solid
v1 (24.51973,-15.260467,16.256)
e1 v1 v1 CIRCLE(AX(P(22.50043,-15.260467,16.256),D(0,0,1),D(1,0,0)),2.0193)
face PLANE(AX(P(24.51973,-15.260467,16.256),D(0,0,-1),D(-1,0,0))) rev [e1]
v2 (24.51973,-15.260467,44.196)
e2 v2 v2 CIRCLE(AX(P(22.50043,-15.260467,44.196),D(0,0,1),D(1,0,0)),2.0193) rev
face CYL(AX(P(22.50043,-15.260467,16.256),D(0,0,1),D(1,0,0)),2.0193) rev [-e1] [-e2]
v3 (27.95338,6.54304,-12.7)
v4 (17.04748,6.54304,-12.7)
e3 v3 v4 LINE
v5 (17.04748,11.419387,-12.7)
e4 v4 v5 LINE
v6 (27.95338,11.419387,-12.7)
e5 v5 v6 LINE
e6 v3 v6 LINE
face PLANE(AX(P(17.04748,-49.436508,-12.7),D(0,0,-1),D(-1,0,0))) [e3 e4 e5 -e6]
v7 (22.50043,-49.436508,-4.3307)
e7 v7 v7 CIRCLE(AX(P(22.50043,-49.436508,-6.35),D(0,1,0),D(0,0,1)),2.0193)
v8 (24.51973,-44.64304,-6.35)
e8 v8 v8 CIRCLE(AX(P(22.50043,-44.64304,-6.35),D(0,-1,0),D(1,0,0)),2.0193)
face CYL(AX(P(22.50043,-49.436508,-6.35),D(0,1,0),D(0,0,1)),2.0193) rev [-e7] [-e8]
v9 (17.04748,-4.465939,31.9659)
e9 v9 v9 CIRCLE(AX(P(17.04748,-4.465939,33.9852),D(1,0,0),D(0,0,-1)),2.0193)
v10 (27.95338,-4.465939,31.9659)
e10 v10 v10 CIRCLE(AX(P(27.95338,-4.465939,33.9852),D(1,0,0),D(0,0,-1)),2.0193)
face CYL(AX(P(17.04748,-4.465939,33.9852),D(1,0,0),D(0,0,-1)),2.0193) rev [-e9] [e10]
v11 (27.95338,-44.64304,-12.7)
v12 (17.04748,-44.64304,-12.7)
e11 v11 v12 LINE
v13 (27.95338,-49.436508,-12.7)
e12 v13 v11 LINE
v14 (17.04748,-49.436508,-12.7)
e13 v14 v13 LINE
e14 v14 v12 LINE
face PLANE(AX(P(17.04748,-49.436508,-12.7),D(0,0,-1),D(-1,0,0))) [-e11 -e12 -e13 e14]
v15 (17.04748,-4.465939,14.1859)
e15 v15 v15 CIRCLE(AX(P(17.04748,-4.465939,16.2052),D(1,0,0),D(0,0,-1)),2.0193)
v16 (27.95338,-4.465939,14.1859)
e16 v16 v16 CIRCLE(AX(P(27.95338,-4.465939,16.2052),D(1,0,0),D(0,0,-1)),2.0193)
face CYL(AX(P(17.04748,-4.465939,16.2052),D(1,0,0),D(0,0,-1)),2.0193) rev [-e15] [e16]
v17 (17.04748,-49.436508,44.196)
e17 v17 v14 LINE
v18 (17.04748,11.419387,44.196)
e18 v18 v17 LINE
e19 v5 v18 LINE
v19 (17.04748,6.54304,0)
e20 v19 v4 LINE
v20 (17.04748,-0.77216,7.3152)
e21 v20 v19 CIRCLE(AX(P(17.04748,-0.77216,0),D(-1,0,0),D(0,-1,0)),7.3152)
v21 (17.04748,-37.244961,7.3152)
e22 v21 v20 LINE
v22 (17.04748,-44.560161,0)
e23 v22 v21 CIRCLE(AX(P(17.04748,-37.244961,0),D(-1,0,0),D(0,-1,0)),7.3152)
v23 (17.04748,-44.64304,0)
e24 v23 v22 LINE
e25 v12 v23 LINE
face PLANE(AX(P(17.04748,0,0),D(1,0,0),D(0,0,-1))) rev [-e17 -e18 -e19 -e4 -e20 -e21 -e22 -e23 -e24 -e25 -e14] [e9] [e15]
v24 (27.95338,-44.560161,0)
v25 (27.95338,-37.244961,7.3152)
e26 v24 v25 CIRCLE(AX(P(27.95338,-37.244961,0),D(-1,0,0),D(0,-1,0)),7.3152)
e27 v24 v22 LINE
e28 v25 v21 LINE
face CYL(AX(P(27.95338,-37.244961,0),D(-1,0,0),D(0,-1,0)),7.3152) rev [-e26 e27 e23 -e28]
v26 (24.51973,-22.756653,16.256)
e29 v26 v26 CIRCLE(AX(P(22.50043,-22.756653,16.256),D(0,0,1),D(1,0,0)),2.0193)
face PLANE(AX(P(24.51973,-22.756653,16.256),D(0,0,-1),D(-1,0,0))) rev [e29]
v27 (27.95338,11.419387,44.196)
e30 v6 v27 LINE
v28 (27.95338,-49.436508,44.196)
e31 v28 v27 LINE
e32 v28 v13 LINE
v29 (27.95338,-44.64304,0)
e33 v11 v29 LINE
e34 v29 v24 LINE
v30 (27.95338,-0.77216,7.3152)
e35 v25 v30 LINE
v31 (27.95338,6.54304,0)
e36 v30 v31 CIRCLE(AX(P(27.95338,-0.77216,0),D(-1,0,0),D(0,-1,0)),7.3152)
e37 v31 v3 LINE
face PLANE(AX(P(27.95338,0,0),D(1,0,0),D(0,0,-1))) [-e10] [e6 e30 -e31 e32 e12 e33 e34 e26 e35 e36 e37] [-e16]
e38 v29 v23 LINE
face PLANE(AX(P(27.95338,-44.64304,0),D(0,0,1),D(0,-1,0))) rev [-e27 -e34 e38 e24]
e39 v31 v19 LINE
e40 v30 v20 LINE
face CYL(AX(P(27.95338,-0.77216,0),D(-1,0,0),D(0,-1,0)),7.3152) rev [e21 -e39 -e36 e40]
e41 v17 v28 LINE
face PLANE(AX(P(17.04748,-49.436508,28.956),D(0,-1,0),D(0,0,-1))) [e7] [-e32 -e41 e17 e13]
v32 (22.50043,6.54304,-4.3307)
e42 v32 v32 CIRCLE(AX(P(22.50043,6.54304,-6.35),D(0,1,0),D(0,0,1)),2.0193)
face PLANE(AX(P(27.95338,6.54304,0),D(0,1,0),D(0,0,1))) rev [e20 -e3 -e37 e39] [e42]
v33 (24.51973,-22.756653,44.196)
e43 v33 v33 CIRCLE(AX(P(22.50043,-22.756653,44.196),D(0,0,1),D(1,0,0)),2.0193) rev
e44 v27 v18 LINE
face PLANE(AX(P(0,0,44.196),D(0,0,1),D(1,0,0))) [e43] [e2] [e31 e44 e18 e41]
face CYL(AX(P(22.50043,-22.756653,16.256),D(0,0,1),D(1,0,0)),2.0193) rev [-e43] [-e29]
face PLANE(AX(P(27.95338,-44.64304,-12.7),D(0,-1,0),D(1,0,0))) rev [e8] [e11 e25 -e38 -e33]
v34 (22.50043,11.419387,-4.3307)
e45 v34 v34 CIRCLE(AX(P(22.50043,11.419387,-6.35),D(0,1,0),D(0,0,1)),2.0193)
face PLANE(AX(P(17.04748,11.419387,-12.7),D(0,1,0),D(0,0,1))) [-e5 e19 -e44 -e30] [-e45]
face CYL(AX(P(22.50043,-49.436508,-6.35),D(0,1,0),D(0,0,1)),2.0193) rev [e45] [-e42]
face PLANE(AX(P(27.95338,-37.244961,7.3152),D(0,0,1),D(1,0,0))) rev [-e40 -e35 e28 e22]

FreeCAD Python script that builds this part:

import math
import FreeCAD as App
import Part
import Sketcher
from FreeCAD import Vector
Q = App.Units.Quantity

doc = App.newDocument("Part")
body = doc.addObject("PartDesign::Body", "Body")

# Sketch on YZ plane
sketch1 = doc.addObject("Sketcher::SketchObject", "Sketch")
body.addObject(sketch1)
sketch1.AttachmentSupport = (doc.YZ_Plane, [""])
sketch1.MapMode = "FlatFace"
sketch1.AttachmentOffset = App.Placement(Vector(0, 0, 27.95338), App.Rotation())
sketch1.addGeometry(Part.LineSegment(Vector(11, 29, 0), Vector(-49, 29, 0)), False)
sketch1.addGeometry(Part.LineSegment(Vector(-49, 29, 0), Vector(-49, -13, 0)), False)
sketch1.addGeometry(Part.LineSegment(Vector(-49, -13, 0), Vector(11, -13, 0)), False)
sketch1.addGeometry(Part.LineSegment(Vector(11, -13, 0), Vector(11, 29, 0)), False)
sketch1.addConstraint(Sketcher.Constraint("Coincident", 0, 2, 1, 1))
sketch1.addConstraint(Sketcher.Constraint("Coincident", 1, 2, 2, 1))
sketch1.addConstraint(Sketcher.Constraint("Coincident", 2, 2, 3, 1))
sketch1.addConstraint(Sketcher.Constraint("Coincident", 3, 2, 0, 1))
sketch1.addConstraint(Sketcher.Constraint("Horizontal", 0))
sketch1.addConstraint(Sketcher.Constraint("Vertical", 1))
sketch1.addConstraint(Sketcher.Constraint("Horizontal", 2))
sketch1.addConstraint(Sketcher.Constraint("Vertical", 3))
sketch1.addConstraint(Sketcher.Constraint("DistanceY", 1, 2, 1, 1, Q("1.64 in")))
sketch1.addConstraint(Sketcher.Constraint("DistanceY", 1, 2, -1, 1, Q("0.5 in")))
sketch1.addConstraint(Sketcher.Constraint("DistanceX", 0, 2, 0, 1, Q("60.855895 mm")))
sketch1.addConstraint(Sketcher.Constraint("DistanceX", 0, 2, -1, 1, Q("49.436508 mm")))
pad1 = doc.addObject("PartDesign::Pad", "Pad")
body.addObject(pad1)
pad1.Profile = sketch1
pad1.Length = 10.9059
pad1.Reversed = True

# Sketch on YZ plane
sketch2 = doc.addObject("Sketcher::SketchObject", "Sketch001")
body.addObject(sketch2)
sketch2.AttachmentSupport = (doc.YZ_Plane, [""])
sketch2.MapMode = "FlatFace"
sketch2.AttachmentOffset = App.Placement(Vector(0, 0, 17.04748), App.Rotation())
sketch2.addGeometry(Part.LineSegment(Vector(6.54, -12.7, 0), Vector(-44.64, -12.7, 0)), False)
sketch2.addGeometry(Part.LineSegment(Vector(-44.64, -12.7, 0), Vector(-44.64, 0, 0)), False)
sketch2.addGeometry(Part.LineSegment(Vector(-44.64, 0, 0), Vector(-44.56, 0, 0)), False)
sketch2.addGeometry(Part.ArcOfCircle(Part.Circle(Vector(-37.24, 0, 0), Vector(0, 0, 1), 7.32), math.radians(90), math.radians(180)), False)
sketch2.addGeometry(Part.LineSegment(Vector(-37.24, 7.32, 0), Vector(-0.77, 7.32, 0)), False)
sketch2.addGeometry(Part.ArcOfCircle(Part.Circle(Vector(-0.77, 0, 0), Vector(0, 0, 1), 7.32), math.radians(0), math.radians(90)), False)
sketch2.addGeometry(Part.LineSegment(Vector(6.54, 0, 0), Vector(6.54, -12.7, 0)), False)
sketch2.addConstraint(Sketcher.Constraint("Coincident", 0, 2, 1, 1))
sketch2.addConstraint(Sketcher.Constraint("Coincident", 1, 2, 2, 1))
sketch2.addConstraint(Sketcher.Constraint("Coincident", 2, 2, 3, 2))
sketch2.addConstraint(Sketcher.Constraint("Tangent", 3, 1, 4, 1))
sketch2.addConstraint(Sketcher.Constraint("Tangent", 4, 2, 5, 2))
sketch2.addConstraint(Sketcher.Constraint("Tangent", 5, 1, 6, 1))
sketch2.addConstraint(Sketcher.Constraint("Coincident", 6, 2, 0, 1))
sketch2.addConstraint(Sketcher.Constraint("Horizontal", 0))
sketch2.addConstraint(Sketcher.Constraint("Vertical", 1))
sketch2.addConstraint(Sketcher.Constraint("Horizontal", 2))
sketch2.addConstraint(Sketcher.Constraint("Horizontal", 4))
sketch2.addConstraint(Sketcher.Constraint("Vertical", 6))
sketch2.addConstraint(Sketcher.Constraint("Equal", 3, 5))
sketch2.addConstraint(Sketcher.Constraint("PointOnObject", 3, 3, -1))
sketch2.addConstraint(Sketcher.Constraint("PointOnObject", 1, 2, -1))
sketch2.addConstraint(Sketcher.Constraint("DistanceY", 1, 1, 1, 2, Q("0.5 in")))
sketch2.addConstraint(Sketcher.Constraint("Radius", 3, Q("0.288 in")))
sketch2.addConstraint(Sketcher.Constraint("DistanceX", 0, 2, 0, 1, Q("2.0152 in")))
sketch2.addConstraint(Sketcher.Constraint("DistanceX", 4, 1, 4, 2, Q("36.472801 mm")))
sketch2.addConstraint(Sketcher.Constraint("DistanceX", 5, 3, -1, 1, Q("0.0304 in")))
pocket1 = doc.addObject("PartDesign::Pocket", "Pocket")
body.addObject(pocket1)
pocket1.Profile = sketch2
pocket1.Type = "ThroughAll"
pocket1.Reversed = True

# Sketch on XY plane
sketch3 = doc.addObject("Sketcher::SketchObject", "Sketch002")
body.addObject(sketch3)
sketch3.AttachmentSupport = (doc.XY_Plane, [""])
sketch3.MapMode = "FlatFace"
sketch3.AttachmentOffset = App.Placement(Vector(0, 0, -0.25 * 25.4), App.Rotation())
sketch3.addGeometry(Part.LineSegment(Vector(24.5, 11.4, 0), Vector(24.5, -49.4, 0)), False)
sketch3.addGeometry(Part.LineSegment(Vector(24.5, -49.4, 0), Vector(22.5, -49.4, 0)), False)
sketch3.addGeometry(Part.LineSegment(Vector(22.5, -49.4, 0), Vector(22.5, 11.4, 0)), False)
sketch3.addGeometry(Part.LineSegment(Vector(22.5, 11.4, 0), Vector(24.5, 11.4, 0)), False)
sketch3.addGeometry(Part.LineSegment(Vector(22.5, -49.4, 0), Vector(22.5, 11.4, 0)), True)  # axis
sketch3.addConstraint(Sketcher.Constraint("Coincident", 0, 2, 1, 1))
sketch3.addConstraint(Sketcher.Constraint("Coincident", 1, 2, 2, 1))
sketch3.addConstraint(Sketcher.Constraint("Coincident", 2, 2, 3, 1))
sketch3.addConstraint(Sketcher.Constraint("Coincident", 3, 2, 0, 1))
sketch3.addConstraint(Sketcher.Constraint("Vertical", 0))
sketch3.addConstraint(Sketcher.Constraint("Horizontal", 1))
sketch3.addConstraint(Sketcher.Constraint("Vertical", 2))
sketch3.addConstraint(Sketcher.Constraint("Horizontal", 3))
sketch3.addConstraint(Sketcher.Constraint("Vertical", 4))
sketch3.addConstraint(Sketcher.Constraint("Coincident", 4, 1, 1, 2))
sketch3.addConstraint(Sketcher.Constraint("Horizontal", 3, 2, 4, 2))
sketch3.addConstraint(Sketcher.Constraint("DistanceX", 1, 2, 1, 1, Q("0.0795 in")))
sketch3.addConstraint(Sketcher.Constraint("DistanceY", 0, 2, 0, 1, Q("60.855895 mm")))
sketch3.addConstraint(Sketcher.Constraint("DistanceX", -1, 1, 0, 2, Q("24.51973 mm")))
sketch3.addConstraint(Sketcher.Constraint("DistanceY", 0, 2, -1, 1, Q("49.436508 mm")))
groove = doc.addObject("PartDesign::Groove", "Groove")
body.addObject(groove)
groove.Profile = sketch3
groove.ReferenceAxis = (sketch3, ["Axis0"])
groove.Angle = 360

# Sketch on XZ plane
sketch4 = doc.addObject("Sketcher::SketchObject", "Sketch003")
body.addObject(sketch4)
sketch4.AttachmentSupport = (doc.XZ_Plane, [""])
sketch4.MapMode = "FlatFace"
sketch4.AttachmentOffset = App.Placement(Vector(0, 0, 22.756653), App.Rotation())
sketch4.addGeometry(Part.LineSegment(Vector(22.5, 16.3, 0), Vector(22.5, 29, 0)), False)
sketch4.addGeometry(Part.LineSegment(Vector(22.5, 29, 0), Vector(24.5, 29, 0)), False)
sketch4.addGeometry(Part.LineSegment(Vector(24.5, 29, 0), Vector(24.5, 16.3, 0)), False)
sketch4.addGeometry(Part.LineSegment(Vector(24.5, 16.3, 0), Vector(22.5, 16.3, 0)), False)
sketch4.addGeometry(Part.LineSegment(Vector(22.5, 16.3, 0), Vector(22.5, 29, 0)), True)  # axis
sketch4.addConstraint(Sketcher.Constraint("Coincident", 0, 2, 1, 1))
sketch4.addConstraint(Sketcher.Constraint("Coincident", 1, 2, 2, 1))
sketch4.addConstraint(Sketcher.Constraint("Coincident", 2, 2, 3, 1))
sketch4.addConstraint(Sketcher.Constraint("Coincident", 3, 2, 0, 1))
sketch4.addConstraint(Sketcher.Constraint("Vertical", 0))
sketch4.addConstraint(Sketcher.Constraint("Horizontal", 1))
sketch4.addConstraint(Sketcher.Constraint("Vertical", 2))
sketch4.addConstraint(Sketcher.Constraint("Horizontal", 3))
sketch4.addConstraint(Sketcher.Constraint("Vertical", 4))
sketch4.addConstraint(Sketcher.Constraint("Coincident", 4, 1, 3, 2))
sketch4.addConstraint(Sketcher.Constraint("Horizontal", 1, 2, 4, 2))
sketch4.addConstraint(Sketcher.Constraint("DistanceY", 0, 1, 0, 2, Q("0.5 in")))
sketch4.addConstraint(Sketcher.Constraint("DistanceY", -1, 1, 0, 2, Q("1.14 in")))
sketch4.addConstraint(Sketcher.Constraint("DistanceX", 1, 1, 1, 2, Q("0.0795 in")))
sketch4.addConstraint(Sketcher.Constraint("DistanceX", -1, 1, 0, 2, Q("22.50043 mm")))
groove2 = doc.addObject("PartDesign::Groove", "Groove001")
body.addObject(groove2)
groove2.Profile = sketch4
groove2.ReferenceAxis = (sketch4, ["Axis0"])
groove2.Angle = 360

# Sketch on XZ plane
sketch5 = doc.addObject("Sketcher::SketchObject", "Sketch004")
body.addObject(sketch5)
sketch5.AttachmentSupport = (doc.XZ_Plane, [""])
sketch5.MapMode = "FlatFace"
sketch5.AttachmentOffset = App.Placement(Vector(0, 0, 15.260467), App.Rotation())
sketch5.addGeometry(Part.LineSegment(Vector(22.5, 16.3, 0), Vector(22.5, 29, 0)), False)
sketch5.addGeometry(Part.LineSegment(Vector(22.5, 29, 0), Vector(24.5, 29, 0)), False)
sketch5.addGeometry(Part.LineSegment(Vector(24.5, 29, 0), Vector(24.5, 16.3, 0)), False)
sketch5.addGeometry(Part.LineSegment(Vector(24.5, 16.3, 0), Vector(22.5, 16.3, 0)), False)
sketch5.addGeometry(Part.LineSegment(Vector(22.5, 16.3, 0), Vector(22.5, 29, 0)), True)  # axis
sketch5.addConstraint(Sketcher.Constraint("Coincident", 0, 2, 1, 1))
sketch5.addConstraint(Sketcher.Constraint("Coincident", 1, 2, 2, 1))
sketch5.addConstraint(Sketcher.Constraint("Coincident", 2, 2, 3, 1))
sketch5.addConstraint(Sketcher.Constraint("Coincident", 3, 2, 0, 1))
sketch5.addConstraint(Sketcher.Constraint("Vertical", 0))
sketch5.addConstraint(Sketcher.Constraint("Horizontal", 1))
sketch5.addConstraint(Sketcher.Constraint("Vertical", 2))
sketch5.addConstraint(Sketcher.Constraint("Horizontal", 3))
sketch5.addConstraint(Sketcher.Constraint("Vertical", 4))
sketch5.addConstraint(Sketcher.Constraint("Coincident", 4, 1, 3, 2))
sketch5.addConstraint(Sketcher.Constraint("Horizontal", 1, 2, 4, 2))
sketch5.addConstraint(Sketcher.Constraint("DistanceY", 0, 1, 0, 2, Q("0.5 in")))
sketch5.addConstraint(Sketcher.Constraint("DistanceY", -1, 1, 0, 2, Q("1.14 in")))
sketch5.addConstraint(Sketcher.Constraint("DistanceX", 1, 1, 1, 2, Q("0.0795 in")))
sketch5.addConstraint(Sketcher.Constraint("DistanceX", -1, 1, 0, 2, Q("22.50043 mm")))
groove3 = doc.addObject("PartDesign::Groove", "Groove002")
body.addObject(groove3)
groove3.Profile = sketch5
groove3.ReferenceAxis = (sketch5, ["Axis0"])
groove3.Angle = 360

# Sketch on XY plane
sketch6 = doc.addObject("Sketcher::SketchObject", "Sketch005")
body.addObject(sketch6)
sketch6.AttachmentSupport = (doc.XY_Plane, [""])
sketch6.MapMode = "FlatFace"
sketch6.AttachmentOffset = App.Placement(Vector(0, 0, 1.14 * 25.4), App.Rotation())
sketch6.addGeometry(Part.LineSegment(Vector(17, 11.4, 0), Vector(17, -49.4, 0)), False)
sketch6.addGeometry(Part.LineSegment(Vector(17, -49.4, 0), Vector(28, -49.4, 0)), False)
sketch6.addGeometry(Part.LineSegment(Vector(28, -49.4, 0), Vector(28, 11.4, 0)), False)
sketch6.addGeometry(Part.LineSegment(Vector(28, 11.4, 0), Vector(17, 11.4, 0)), False)
sketch6.addGeometry(Part.Circle(Vector(22.5, -22.8, 0), Vector(0, 0, 1), 2), False)
sketch6.addGeometry(Part.Circle(Vector(22.5, -15.3, 0), Vector(0, 0, 1), 2), False)
sketch6.addConstraint(Sketcher.Constraint("Coincident", 0, 2, 1, 1))
sketch6.addConstraint(Sketcher.Constraint("Coincident", 1, 2, 2, 1))
sketch6.addConstraint(Sketcher.Constraint("Coincident", 2, 2, 3, 1))
sketch6.addConstraint(Sketcher.Constraint("Coincident", 3, 2, 0, 1))
sketch6.addConstraint(Sketcher.Constraint("Vertical", 0))
sketch6.addConstraint(Sketcher.Constraint("Horizontal", 1))
sketch6.addConstraint(Sketcher.Constraint("Vertical", 2))
sketch6.addConstraint(Sketcher.Constraint("Horizontal", 3))
sketch6.addConstraint(Sketcher.Constraint("Equal", 4, 5))
sketch6.addConstraint(Sketcher.Constraint("Vertical", 4, 3, 5, 3))
sketch6.addConstraint(Sketcher.Constraint("Diameter", 4, Q("0.159 in")))
sketch6.addConstraint(Sketcher.Constraint("DistanceX", 1, 1, 1, 2, Q("10.9059 mm")))
sketch6.addConstraint(Sketcher.Constraint("DistanceY", 0, 2, 0, 1, Q("60.855895 mm")))
sketch6.addConstraint(Sketcher.Constraint("DistanceX", -1, 1, 4, 3, Q("22.50043 mm")))
sketch6.addConstraint(Sketcher.Constraint("DistanceX", -1, 1, 0, 2, Q("17.04748 mm")))
sketch6.addConstraint(Sketcher.Constraint("DistanceY", 0, 2, -1, 1, Q("49.436508 mm")))
sketch6.addConstraint(Sketcher.Constraint("DistanceY", 0, 2, 5, 3, Q("34.176041 mm")))
sketch6.addConstraint(Sketcher.Constraint("DistanceY", 4, 3, 2, 2, Q("34.176041 mm")))
pad2 = doc.addObject("PartDesign::Pad", "Pad001")
body.addObject(pad2)
pad2.Profile = sketch6
pad2.Length = Q("0.6 in")

# Sketch on YZ plane
sketch7 = doc.addObject("Sketcher::SketchObject", "Sketch006")
body.addObject(sketch7)
sketch7.AttachmentSupport = (doc.YZ_Plane, [""])
sketch7.MapMode = "FlatFace"
sketch7.AttachmentOffset = App.Placement(Vector(0, 0, 27.95338), App.Rotation())
sketch7.addGeometry(Part.Circle(Vector(-4.5, 34, 0), Vector(0, 0, 1), 2), False)
sketch7.addGeometry(Part.Circle(Vector(-4.5, 16.2, 0), Vector(0, 0, 1), 2), False)
sketch7.addConstraint(Sketcher.Constraint("Equal", 0, 1))
sketch7.addConstraint(Sketcher.Constraint("Vertical", 0, 3, 1, 3))
sketch7.addConstraint(Sketcher.Constraint("Diameter", 0, Q("0.159 in")))
sketch7.addConstraint(Sketcher.Constraint("DistanceY", 1, 3, 0, 3, Q("0.7 in")))
sketch7.addConstraint(Sketcher.Constraint("DistanceY", -1, 1, 0, 3, Q("1.338 in")))
sketch7.addConstraint(Sketcher.Constraint("DistanceX", 0, 3, -1, 1, Q("4.465939 mm")))
pocket2 = doc.addObject("PartDesign::Pocket", "Pocket001")
body.addObject(pocket2)
pocket2.Profile = sketch7
pocket2.Type = "ThroughAll"

doc.recompute()
